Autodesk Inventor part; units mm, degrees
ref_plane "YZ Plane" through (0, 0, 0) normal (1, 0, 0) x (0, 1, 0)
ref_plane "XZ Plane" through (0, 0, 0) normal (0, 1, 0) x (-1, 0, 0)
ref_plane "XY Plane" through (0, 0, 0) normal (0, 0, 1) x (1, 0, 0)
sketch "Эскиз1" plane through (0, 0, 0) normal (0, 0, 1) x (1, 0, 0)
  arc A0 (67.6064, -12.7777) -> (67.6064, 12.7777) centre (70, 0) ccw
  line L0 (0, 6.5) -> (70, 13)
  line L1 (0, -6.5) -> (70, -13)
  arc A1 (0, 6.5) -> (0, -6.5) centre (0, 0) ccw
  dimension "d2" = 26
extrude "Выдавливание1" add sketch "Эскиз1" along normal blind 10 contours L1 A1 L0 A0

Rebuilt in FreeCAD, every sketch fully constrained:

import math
import FreeCAD as App
import Part
import Sketcher

doc = App.newDocument("Part")
body = doc.addObject("PartDesign::Body", "Body")

sketch1 = doc.addObject("Sketcher::SketchObject", "Sketch")
body.addObject(sketch1)
sketch1.AttachmentSupport = (doc.XY_Plane, [""])
sketch1.MapMode = "FlatFace"
sketch1.addGeometry(Part.LineSegment(App.Vector(0, -6.5, 0), App.Vector(70, -13, 0)), False)
sketch1.addGeometry(Part.ArcOfCircle(Part.Circle(App.Vector(70, 0, 0), App.Vector(0, 0, 1), 12.999959), math.radians(-90), math.radians(90)), False)
sketch1.addGeometry(Part.LineSegment(App.Vector(70, 13, 0), App.Vector(0, 6.5, 0)), False)
sketch1.addGeometry(Part.ArcOfCircle(Part.Circle(App.Vector(0, 0, 0), App.Vector(0, 0, 1), 6.5), math.radians(90), math.radians(270)), False)
sketch1.addConstraint(Sketcher.Constraint("Coincident", 0, 2, 1, 1))
sketch1.addConstraint(Sketcher.Constraint("Coincident", 1, 2, 2, 1))
sketch1.addConstraint(Sketcher.Constraint("Coincident", 2, 2, 3, 1))
sketch1.addConstraint(Sketcher.Constraint("Coincident", 3, 2, 0, 1))
sketch1.addConstraint(Sketcher.Constraint("Coincident", 3, 3, -1, 1))
sketch1.addConstraint(Sketcher.Constraint("Symmetric", 0, 2, 1, 2, -1))
sketch1.addConstraint(Sketcher.Constraint("PointOnObject", 2, 2, -2))
sketch1.addConstraint(Sketcher.Constraint("PointOnObject", 3, 2, -2))
sketch1.addConstraint(Sketcher.Constraint("Vertical", 1, 3, 0, 2))
sketch1.addConstraint(Sketcher.Constraint("Radius", 1, 13.0))
sketch1.addConstraint(Sketcher.Constraint("Radius", 3, 6.5))
sketch1.addConstraint(Sketcher.Constraint("DistanceX", -1, 1, 1, 3, 70.0))
pad1 = doc.addObject("PartDesign::Pad", "Pad")
body.addObject(pad1)
pad1.Profile = sketch1
pad1.Length = 10

doc.recompute()
